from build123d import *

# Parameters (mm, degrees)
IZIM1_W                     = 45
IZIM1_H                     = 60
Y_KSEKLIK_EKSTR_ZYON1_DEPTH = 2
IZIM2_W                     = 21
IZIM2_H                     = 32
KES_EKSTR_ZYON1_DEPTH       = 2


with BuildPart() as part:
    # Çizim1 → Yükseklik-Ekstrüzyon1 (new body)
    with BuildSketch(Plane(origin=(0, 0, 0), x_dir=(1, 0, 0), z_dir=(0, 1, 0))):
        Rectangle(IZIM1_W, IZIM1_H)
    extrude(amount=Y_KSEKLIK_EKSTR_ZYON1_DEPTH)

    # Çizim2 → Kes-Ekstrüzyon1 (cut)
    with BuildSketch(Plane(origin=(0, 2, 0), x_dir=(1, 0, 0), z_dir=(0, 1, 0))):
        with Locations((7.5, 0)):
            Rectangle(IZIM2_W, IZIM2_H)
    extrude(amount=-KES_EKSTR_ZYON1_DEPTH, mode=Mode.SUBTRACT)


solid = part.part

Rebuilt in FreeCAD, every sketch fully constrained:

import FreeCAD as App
import Part
import Sketcher
from FreeCAD import Vector

doc = App.newDocument("Part")
params = doc.addObject("Spreadsheet::Sheet", "Params")
for row, (alias, value) in enumerate([
    ("sketch1_width", "45 mm"),
    ("sketch1_height", "60 mm"),
    ("pad1_length", "2 mm"),
    ("sketch2_width", "21 mm"),
    ("sketch2_height", "32 mm"),
    ("pocket1_length", "2 mm"),
], start=1):
    params.set(f"A{row}", alias)
    params.set(f"B{row}", "=" + value)
    params.setAlias(f"B{row}", alias)

body = doc.addObject("PartDesign::Body", "Body")

sketch1 = body.newObject("Sketcher::SketchObject", "Sketch")
sketch1.AttachmentSupport = (doc.getObject("XZ_Plane"), [""])
sketch1.MapMode = "FlatFace"
sketch1.addGeometry([
    Part.LineSegment(Vector(-22.5, -30, 0), Vector(-22.5, 30, 0)),
    Part.LineSegment(Vector(-22.5, 30, 0), Vector(22.5, 30, 0)),
    Part.LineSegment(Vector(22.5, 30, 0), Vector(22.5, -30, 0)),
    Part.LineSegment(Vector(22.5, -30, 0), Vector(-22.5, -30, 0)),
], False)
sketch1.addConstraint([
    Sketcher.Constraint("Coincident", 0, 2, 1, 1),
    Sketcher.Constraint("Coincident", 1, 2, 2, 1),
    Sketcher.Constraint("Coincident", 2, 2, 3, 1),
    Sketcher.Constraint("Coincident", 3, 2, 0, 1),
    Sketcher.Constraint("Vertical", 0),
    Sketcher.Constraint("Horizontal", 1),
    Sketcher.Constraint("Vertical", 2),
    Sketcher.Constraint("Horizontal", 3),
    Sketcher.Constraint("Symmetric", 0, 2, 2, 2, -1, 1),
    Sketcher.Constraint("DistanceX", 1, 1, 1, 2, 45.0),
    Sketcher.Constraint("DistanceY", 0, 1, 0, 2, 60.0),
])
sketch1.setExpression("Constraints[9]", "Params.sketch1_width")
sketch1.setExpression("Constraints[10]", "Params.sketch1_height")
pad1 = body.newObject("PartDesign::Pad", "Pad")
pad1.Profile = sketch1
pad1.setExpression("Length", "Params.pad1_length")
pad1.Reversed = True

sketch2 = body.newObject("Sketcher::SketchObject", "Sketch001")
sketch2.AttachmentSupport = (doc.getObject("XZ_Plane"), [""])
sketch2.MapMode = "FlatFace"
sketch2.AttachmentOffset = App.Placement(Vector(0, 0, -2), App.Rotation())
sketch2.addGeometry([
    Part.LineSegment(Vector(-3, -16, 0), Vector(-3, 16, 0)),
    Part.LineSegment(Vector(-3, 16, 0), Vector(18, 16, 0)),
    Part.LineSegment(Vector(18, 16, 0), Vector(18, -16, 0)),
    Part.LineSegment(Vector(18, -16, 0), Vector(-3, -16, 0)),
], False)
sketch2.addConstraint([
    Sketcher.Constraint("Coincident", 0, 2, 1, 1),
    Sketcher.Constraint("Coincident", 1, 2, 2, 1),
    Sketcher.Constraint("Coincident", 2, 2, 3, 1),
    Sketcher.Constraint("Coincident", 3, 2, 0, 1),
    Sketcher.Constraint("Vertical", 0),
    Sketcher.Constraint("Horizontal", 1),
    Sketcher.Constraint("Vertical", 2),
    Sketcher.Constraint("Horizontal", 3),
    Sketcher.Constraint("DistanceX", 1, 1, 1, 2, 21.0),
    Sketcher.Constraint("DistanceY", 0, 1, 0, 2, 32.0),
    Sketcher.Constraint("DistanceX", 0, 2, -1, 1, 3.0),
    Sketcher.Constraint("DistanceY", -1, 1, 0, 2, 16.0),
])
sketch2.setExpression("Constraints[8]", "Params.sketch2_width")
sketch2.setExpression("Constraints[9]", "Params.sketch2_height")
pocket1 = body.newObject("PartDesign::Pocket", "Pocket")
pocket1.Profile = sketch2
pocket1.setExpression("Length", "Params.pocket1_length")
pocket1.Reversed = True

doc.recompute()
